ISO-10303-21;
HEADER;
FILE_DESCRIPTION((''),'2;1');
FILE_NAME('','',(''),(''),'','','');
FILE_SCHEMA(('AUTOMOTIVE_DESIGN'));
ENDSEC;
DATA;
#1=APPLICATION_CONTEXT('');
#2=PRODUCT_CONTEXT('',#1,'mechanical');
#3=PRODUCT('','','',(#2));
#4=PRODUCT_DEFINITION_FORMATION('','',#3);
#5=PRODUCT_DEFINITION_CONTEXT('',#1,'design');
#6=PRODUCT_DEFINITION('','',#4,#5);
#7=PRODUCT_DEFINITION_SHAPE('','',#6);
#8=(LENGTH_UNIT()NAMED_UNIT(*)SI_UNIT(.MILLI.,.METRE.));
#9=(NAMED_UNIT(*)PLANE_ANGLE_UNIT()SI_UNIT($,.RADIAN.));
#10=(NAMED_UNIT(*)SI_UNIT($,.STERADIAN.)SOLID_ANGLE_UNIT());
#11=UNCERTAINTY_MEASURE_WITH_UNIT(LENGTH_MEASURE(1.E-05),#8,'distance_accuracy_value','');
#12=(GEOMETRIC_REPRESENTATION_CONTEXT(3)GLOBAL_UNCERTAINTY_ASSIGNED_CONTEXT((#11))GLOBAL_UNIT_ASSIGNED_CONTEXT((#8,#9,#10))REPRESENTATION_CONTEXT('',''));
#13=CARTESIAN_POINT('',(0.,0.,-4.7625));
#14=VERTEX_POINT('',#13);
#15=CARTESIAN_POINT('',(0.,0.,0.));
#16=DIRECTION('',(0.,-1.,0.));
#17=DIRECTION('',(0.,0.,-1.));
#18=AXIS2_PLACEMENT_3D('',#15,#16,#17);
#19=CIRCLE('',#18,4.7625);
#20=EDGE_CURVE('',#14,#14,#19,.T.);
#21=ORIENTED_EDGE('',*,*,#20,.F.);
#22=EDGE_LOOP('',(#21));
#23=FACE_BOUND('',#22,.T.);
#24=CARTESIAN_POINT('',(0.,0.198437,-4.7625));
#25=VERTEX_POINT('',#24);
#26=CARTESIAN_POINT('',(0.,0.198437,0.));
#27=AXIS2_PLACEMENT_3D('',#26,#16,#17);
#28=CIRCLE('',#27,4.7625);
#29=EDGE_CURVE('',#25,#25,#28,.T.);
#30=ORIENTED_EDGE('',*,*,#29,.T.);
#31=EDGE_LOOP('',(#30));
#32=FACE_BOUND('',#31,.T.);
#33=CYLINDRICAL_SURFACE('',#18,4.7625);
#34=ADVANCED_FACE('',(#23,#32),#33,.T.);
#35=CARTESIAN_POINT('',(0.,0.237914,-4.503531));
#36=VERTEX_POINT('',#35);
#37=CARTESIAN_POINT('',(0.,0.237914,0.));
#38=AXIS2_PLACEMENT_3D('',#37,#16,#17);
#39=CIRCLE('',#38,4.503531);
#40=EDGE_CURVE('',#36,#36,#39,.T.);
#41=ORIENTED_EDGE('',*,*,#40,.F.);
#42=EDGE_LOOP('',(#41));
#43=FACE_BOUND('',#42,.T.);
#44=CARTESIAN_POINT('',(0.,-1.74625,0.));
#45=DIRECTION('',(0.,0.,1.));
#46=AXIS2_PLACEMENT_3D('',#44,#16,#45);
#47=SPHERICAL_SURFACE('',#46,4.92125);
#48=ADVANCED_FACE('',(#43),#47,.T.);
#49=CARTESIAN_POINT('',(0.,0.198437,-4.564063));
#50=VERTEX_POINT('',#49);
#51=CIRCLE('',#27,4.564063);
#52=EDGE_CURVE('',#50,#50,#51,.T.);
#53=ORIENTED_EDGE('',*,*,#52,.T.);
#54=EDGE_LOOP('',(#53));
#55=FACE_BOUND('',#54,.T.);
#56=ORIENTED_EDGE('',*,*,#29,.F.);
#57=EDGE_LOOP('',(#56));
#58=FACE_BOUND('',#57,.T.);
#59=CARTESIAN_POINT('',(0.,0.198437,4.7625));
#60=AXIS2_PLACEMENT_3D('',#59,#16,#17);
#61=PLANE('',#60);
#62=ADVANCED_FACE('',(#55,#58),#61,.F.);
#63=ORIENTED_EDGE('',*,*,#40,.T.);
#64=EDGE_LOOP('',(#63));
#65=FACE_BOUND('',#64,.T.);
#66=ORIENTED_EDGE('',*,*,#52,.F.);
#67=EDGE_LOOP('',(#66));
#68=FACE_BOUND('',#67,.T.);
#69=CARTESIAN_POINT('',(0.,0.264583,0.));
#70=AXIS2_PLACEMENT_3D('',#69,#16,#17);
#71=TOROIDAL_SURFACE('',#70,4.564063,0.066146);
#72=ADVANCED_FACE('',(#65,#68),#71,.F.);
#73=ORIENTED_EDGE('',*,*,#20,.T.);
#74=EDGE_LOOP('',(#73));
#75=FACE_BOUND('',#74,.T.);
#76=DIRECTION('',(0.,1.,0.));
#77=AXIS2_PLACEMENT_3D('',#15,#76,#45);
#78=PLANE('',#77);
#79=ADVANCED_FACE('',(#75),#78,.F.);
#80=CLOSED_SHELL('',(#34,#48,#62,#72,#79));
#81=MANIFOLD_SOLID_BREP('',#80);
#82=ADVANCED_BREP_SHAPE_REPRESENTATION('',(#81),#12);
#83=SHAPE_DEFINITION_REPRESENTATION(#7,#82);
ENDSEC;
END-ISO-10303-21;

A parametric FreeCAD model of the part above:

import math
import FreeCAD as App
import Part
import Sketcher
Q = App.Units.Quantity

doc = App.newDocument("Part")
params = doc.addObject("Spreadsheet::Sheet", "Params")
for row, (alias, value) in enumerate([
    ("sketch1_width", "0.125 in"),
    ("sketch1_height", "0.1875 in"),
    ("revolution_angle", "360 deg"),
], start=1):
    params.set(f"A{row}", alias)
    params.set(f"B{row}", "=" + value)
    params.setAlias(f"B{row}", alias)

body = doc.addObject("PartDesign::Body", "Body")

# Sketch on YZ plane
sketch1 = body.newObject("Sketcher::SketchObject", "Sketch")
sketch1.AttachmentSupport = (doc.getObject("YZ_Plane"), [""])
sketch1.MapMode = "FlatFace"
sketch1.addGeometry([
    Part.LineSegment(App.Vector(0.198437, 4.7625, 0), App.Vector(0, 4.7625, 0)),  # 0
    Part.LineSegment(App.Vector(0, 4.7625, 0), App.Vector(0, 0, 0)),  # 1
    Part.LineSegment(App.Vector(0, 0, 0), App.Vector(3.175, 0, 0)),  # 2
    Part.ArcOfCircle(Part.Circle(App.Vector(-1.74625, 0, 0), App.Vector(0, 0, 1), 4.92125), math.radians(0), math.radians(66.222684)),  # 3
    Part.ArcOfCircle(Part.Circle(App.Vector(0.264583, 4.564062, 0), App.Vector(0, 0, 1), 0.066146), math.radians(179.999998), math.radians(246.222685)),  # 4
    Part.LineSegment(App.Vector(0.198437, 4.564063, 0), App.Vector(0.198437, 4.7625, 0)),  # 5
], False)
sketch1.addConstraint([
    Sketcher.Constraint("Coincident", 0, 2, 1, 1),
    Sketcher.Constraint("Coincident", 1, 2, 2, 1),
    Sketcher.Constraint("Coincident", 2, 2, 3, 1),
    Sketcher.Constraint("Tangent", 3, 2, 4, 2),
    Sketcher.Constraint("Tangent", 4, 1, 5, 1),
    Sketcher.Constraint("Coincident", 5, 2, 0, 1),
    Sketcher.Constraint("Horizontal", 0),
    Sketcher.Constraint("Vertical", 1),
    Sketcher.Constraint("Horizontal", 2),
    Sketcher.Constraint("Vertical", 5),
    Sketcher.Constraint("Coincident", 1, 2, -1, 1),
    Sketcher.Constraint("PointOnObject", 3, 3, -1),
    Sketcher.Constraint("Equal", 0, 5),
    Sketcher.Constraint("DistanceX", 2, 1, 2, 2, Q("0.125 in")),
    Sketcher.Constraint("DistanceY", 1, 2, 1, 1, Q("0.1875 in")),
    Sketcher.Constraint("Radius", 3, 4.92125),
    Sketcher.Constraint("Radius", 4, 0.066146),
])
sketch1.setExpression("Constraints[13]", "Params.sketch1_width")
sketch1.setExpression("Constraints[14]", "Params.sketch1_height")
revolution = body.newObject("PartDesign::Revolution", "Revolution")
revolution.Profile = sketch1
revolution.ReferenceAxis = (sketch1, ["H_Axis"])
revolution.setExpression("Angle", "Params.revolution_angle")

doc.recompute()
